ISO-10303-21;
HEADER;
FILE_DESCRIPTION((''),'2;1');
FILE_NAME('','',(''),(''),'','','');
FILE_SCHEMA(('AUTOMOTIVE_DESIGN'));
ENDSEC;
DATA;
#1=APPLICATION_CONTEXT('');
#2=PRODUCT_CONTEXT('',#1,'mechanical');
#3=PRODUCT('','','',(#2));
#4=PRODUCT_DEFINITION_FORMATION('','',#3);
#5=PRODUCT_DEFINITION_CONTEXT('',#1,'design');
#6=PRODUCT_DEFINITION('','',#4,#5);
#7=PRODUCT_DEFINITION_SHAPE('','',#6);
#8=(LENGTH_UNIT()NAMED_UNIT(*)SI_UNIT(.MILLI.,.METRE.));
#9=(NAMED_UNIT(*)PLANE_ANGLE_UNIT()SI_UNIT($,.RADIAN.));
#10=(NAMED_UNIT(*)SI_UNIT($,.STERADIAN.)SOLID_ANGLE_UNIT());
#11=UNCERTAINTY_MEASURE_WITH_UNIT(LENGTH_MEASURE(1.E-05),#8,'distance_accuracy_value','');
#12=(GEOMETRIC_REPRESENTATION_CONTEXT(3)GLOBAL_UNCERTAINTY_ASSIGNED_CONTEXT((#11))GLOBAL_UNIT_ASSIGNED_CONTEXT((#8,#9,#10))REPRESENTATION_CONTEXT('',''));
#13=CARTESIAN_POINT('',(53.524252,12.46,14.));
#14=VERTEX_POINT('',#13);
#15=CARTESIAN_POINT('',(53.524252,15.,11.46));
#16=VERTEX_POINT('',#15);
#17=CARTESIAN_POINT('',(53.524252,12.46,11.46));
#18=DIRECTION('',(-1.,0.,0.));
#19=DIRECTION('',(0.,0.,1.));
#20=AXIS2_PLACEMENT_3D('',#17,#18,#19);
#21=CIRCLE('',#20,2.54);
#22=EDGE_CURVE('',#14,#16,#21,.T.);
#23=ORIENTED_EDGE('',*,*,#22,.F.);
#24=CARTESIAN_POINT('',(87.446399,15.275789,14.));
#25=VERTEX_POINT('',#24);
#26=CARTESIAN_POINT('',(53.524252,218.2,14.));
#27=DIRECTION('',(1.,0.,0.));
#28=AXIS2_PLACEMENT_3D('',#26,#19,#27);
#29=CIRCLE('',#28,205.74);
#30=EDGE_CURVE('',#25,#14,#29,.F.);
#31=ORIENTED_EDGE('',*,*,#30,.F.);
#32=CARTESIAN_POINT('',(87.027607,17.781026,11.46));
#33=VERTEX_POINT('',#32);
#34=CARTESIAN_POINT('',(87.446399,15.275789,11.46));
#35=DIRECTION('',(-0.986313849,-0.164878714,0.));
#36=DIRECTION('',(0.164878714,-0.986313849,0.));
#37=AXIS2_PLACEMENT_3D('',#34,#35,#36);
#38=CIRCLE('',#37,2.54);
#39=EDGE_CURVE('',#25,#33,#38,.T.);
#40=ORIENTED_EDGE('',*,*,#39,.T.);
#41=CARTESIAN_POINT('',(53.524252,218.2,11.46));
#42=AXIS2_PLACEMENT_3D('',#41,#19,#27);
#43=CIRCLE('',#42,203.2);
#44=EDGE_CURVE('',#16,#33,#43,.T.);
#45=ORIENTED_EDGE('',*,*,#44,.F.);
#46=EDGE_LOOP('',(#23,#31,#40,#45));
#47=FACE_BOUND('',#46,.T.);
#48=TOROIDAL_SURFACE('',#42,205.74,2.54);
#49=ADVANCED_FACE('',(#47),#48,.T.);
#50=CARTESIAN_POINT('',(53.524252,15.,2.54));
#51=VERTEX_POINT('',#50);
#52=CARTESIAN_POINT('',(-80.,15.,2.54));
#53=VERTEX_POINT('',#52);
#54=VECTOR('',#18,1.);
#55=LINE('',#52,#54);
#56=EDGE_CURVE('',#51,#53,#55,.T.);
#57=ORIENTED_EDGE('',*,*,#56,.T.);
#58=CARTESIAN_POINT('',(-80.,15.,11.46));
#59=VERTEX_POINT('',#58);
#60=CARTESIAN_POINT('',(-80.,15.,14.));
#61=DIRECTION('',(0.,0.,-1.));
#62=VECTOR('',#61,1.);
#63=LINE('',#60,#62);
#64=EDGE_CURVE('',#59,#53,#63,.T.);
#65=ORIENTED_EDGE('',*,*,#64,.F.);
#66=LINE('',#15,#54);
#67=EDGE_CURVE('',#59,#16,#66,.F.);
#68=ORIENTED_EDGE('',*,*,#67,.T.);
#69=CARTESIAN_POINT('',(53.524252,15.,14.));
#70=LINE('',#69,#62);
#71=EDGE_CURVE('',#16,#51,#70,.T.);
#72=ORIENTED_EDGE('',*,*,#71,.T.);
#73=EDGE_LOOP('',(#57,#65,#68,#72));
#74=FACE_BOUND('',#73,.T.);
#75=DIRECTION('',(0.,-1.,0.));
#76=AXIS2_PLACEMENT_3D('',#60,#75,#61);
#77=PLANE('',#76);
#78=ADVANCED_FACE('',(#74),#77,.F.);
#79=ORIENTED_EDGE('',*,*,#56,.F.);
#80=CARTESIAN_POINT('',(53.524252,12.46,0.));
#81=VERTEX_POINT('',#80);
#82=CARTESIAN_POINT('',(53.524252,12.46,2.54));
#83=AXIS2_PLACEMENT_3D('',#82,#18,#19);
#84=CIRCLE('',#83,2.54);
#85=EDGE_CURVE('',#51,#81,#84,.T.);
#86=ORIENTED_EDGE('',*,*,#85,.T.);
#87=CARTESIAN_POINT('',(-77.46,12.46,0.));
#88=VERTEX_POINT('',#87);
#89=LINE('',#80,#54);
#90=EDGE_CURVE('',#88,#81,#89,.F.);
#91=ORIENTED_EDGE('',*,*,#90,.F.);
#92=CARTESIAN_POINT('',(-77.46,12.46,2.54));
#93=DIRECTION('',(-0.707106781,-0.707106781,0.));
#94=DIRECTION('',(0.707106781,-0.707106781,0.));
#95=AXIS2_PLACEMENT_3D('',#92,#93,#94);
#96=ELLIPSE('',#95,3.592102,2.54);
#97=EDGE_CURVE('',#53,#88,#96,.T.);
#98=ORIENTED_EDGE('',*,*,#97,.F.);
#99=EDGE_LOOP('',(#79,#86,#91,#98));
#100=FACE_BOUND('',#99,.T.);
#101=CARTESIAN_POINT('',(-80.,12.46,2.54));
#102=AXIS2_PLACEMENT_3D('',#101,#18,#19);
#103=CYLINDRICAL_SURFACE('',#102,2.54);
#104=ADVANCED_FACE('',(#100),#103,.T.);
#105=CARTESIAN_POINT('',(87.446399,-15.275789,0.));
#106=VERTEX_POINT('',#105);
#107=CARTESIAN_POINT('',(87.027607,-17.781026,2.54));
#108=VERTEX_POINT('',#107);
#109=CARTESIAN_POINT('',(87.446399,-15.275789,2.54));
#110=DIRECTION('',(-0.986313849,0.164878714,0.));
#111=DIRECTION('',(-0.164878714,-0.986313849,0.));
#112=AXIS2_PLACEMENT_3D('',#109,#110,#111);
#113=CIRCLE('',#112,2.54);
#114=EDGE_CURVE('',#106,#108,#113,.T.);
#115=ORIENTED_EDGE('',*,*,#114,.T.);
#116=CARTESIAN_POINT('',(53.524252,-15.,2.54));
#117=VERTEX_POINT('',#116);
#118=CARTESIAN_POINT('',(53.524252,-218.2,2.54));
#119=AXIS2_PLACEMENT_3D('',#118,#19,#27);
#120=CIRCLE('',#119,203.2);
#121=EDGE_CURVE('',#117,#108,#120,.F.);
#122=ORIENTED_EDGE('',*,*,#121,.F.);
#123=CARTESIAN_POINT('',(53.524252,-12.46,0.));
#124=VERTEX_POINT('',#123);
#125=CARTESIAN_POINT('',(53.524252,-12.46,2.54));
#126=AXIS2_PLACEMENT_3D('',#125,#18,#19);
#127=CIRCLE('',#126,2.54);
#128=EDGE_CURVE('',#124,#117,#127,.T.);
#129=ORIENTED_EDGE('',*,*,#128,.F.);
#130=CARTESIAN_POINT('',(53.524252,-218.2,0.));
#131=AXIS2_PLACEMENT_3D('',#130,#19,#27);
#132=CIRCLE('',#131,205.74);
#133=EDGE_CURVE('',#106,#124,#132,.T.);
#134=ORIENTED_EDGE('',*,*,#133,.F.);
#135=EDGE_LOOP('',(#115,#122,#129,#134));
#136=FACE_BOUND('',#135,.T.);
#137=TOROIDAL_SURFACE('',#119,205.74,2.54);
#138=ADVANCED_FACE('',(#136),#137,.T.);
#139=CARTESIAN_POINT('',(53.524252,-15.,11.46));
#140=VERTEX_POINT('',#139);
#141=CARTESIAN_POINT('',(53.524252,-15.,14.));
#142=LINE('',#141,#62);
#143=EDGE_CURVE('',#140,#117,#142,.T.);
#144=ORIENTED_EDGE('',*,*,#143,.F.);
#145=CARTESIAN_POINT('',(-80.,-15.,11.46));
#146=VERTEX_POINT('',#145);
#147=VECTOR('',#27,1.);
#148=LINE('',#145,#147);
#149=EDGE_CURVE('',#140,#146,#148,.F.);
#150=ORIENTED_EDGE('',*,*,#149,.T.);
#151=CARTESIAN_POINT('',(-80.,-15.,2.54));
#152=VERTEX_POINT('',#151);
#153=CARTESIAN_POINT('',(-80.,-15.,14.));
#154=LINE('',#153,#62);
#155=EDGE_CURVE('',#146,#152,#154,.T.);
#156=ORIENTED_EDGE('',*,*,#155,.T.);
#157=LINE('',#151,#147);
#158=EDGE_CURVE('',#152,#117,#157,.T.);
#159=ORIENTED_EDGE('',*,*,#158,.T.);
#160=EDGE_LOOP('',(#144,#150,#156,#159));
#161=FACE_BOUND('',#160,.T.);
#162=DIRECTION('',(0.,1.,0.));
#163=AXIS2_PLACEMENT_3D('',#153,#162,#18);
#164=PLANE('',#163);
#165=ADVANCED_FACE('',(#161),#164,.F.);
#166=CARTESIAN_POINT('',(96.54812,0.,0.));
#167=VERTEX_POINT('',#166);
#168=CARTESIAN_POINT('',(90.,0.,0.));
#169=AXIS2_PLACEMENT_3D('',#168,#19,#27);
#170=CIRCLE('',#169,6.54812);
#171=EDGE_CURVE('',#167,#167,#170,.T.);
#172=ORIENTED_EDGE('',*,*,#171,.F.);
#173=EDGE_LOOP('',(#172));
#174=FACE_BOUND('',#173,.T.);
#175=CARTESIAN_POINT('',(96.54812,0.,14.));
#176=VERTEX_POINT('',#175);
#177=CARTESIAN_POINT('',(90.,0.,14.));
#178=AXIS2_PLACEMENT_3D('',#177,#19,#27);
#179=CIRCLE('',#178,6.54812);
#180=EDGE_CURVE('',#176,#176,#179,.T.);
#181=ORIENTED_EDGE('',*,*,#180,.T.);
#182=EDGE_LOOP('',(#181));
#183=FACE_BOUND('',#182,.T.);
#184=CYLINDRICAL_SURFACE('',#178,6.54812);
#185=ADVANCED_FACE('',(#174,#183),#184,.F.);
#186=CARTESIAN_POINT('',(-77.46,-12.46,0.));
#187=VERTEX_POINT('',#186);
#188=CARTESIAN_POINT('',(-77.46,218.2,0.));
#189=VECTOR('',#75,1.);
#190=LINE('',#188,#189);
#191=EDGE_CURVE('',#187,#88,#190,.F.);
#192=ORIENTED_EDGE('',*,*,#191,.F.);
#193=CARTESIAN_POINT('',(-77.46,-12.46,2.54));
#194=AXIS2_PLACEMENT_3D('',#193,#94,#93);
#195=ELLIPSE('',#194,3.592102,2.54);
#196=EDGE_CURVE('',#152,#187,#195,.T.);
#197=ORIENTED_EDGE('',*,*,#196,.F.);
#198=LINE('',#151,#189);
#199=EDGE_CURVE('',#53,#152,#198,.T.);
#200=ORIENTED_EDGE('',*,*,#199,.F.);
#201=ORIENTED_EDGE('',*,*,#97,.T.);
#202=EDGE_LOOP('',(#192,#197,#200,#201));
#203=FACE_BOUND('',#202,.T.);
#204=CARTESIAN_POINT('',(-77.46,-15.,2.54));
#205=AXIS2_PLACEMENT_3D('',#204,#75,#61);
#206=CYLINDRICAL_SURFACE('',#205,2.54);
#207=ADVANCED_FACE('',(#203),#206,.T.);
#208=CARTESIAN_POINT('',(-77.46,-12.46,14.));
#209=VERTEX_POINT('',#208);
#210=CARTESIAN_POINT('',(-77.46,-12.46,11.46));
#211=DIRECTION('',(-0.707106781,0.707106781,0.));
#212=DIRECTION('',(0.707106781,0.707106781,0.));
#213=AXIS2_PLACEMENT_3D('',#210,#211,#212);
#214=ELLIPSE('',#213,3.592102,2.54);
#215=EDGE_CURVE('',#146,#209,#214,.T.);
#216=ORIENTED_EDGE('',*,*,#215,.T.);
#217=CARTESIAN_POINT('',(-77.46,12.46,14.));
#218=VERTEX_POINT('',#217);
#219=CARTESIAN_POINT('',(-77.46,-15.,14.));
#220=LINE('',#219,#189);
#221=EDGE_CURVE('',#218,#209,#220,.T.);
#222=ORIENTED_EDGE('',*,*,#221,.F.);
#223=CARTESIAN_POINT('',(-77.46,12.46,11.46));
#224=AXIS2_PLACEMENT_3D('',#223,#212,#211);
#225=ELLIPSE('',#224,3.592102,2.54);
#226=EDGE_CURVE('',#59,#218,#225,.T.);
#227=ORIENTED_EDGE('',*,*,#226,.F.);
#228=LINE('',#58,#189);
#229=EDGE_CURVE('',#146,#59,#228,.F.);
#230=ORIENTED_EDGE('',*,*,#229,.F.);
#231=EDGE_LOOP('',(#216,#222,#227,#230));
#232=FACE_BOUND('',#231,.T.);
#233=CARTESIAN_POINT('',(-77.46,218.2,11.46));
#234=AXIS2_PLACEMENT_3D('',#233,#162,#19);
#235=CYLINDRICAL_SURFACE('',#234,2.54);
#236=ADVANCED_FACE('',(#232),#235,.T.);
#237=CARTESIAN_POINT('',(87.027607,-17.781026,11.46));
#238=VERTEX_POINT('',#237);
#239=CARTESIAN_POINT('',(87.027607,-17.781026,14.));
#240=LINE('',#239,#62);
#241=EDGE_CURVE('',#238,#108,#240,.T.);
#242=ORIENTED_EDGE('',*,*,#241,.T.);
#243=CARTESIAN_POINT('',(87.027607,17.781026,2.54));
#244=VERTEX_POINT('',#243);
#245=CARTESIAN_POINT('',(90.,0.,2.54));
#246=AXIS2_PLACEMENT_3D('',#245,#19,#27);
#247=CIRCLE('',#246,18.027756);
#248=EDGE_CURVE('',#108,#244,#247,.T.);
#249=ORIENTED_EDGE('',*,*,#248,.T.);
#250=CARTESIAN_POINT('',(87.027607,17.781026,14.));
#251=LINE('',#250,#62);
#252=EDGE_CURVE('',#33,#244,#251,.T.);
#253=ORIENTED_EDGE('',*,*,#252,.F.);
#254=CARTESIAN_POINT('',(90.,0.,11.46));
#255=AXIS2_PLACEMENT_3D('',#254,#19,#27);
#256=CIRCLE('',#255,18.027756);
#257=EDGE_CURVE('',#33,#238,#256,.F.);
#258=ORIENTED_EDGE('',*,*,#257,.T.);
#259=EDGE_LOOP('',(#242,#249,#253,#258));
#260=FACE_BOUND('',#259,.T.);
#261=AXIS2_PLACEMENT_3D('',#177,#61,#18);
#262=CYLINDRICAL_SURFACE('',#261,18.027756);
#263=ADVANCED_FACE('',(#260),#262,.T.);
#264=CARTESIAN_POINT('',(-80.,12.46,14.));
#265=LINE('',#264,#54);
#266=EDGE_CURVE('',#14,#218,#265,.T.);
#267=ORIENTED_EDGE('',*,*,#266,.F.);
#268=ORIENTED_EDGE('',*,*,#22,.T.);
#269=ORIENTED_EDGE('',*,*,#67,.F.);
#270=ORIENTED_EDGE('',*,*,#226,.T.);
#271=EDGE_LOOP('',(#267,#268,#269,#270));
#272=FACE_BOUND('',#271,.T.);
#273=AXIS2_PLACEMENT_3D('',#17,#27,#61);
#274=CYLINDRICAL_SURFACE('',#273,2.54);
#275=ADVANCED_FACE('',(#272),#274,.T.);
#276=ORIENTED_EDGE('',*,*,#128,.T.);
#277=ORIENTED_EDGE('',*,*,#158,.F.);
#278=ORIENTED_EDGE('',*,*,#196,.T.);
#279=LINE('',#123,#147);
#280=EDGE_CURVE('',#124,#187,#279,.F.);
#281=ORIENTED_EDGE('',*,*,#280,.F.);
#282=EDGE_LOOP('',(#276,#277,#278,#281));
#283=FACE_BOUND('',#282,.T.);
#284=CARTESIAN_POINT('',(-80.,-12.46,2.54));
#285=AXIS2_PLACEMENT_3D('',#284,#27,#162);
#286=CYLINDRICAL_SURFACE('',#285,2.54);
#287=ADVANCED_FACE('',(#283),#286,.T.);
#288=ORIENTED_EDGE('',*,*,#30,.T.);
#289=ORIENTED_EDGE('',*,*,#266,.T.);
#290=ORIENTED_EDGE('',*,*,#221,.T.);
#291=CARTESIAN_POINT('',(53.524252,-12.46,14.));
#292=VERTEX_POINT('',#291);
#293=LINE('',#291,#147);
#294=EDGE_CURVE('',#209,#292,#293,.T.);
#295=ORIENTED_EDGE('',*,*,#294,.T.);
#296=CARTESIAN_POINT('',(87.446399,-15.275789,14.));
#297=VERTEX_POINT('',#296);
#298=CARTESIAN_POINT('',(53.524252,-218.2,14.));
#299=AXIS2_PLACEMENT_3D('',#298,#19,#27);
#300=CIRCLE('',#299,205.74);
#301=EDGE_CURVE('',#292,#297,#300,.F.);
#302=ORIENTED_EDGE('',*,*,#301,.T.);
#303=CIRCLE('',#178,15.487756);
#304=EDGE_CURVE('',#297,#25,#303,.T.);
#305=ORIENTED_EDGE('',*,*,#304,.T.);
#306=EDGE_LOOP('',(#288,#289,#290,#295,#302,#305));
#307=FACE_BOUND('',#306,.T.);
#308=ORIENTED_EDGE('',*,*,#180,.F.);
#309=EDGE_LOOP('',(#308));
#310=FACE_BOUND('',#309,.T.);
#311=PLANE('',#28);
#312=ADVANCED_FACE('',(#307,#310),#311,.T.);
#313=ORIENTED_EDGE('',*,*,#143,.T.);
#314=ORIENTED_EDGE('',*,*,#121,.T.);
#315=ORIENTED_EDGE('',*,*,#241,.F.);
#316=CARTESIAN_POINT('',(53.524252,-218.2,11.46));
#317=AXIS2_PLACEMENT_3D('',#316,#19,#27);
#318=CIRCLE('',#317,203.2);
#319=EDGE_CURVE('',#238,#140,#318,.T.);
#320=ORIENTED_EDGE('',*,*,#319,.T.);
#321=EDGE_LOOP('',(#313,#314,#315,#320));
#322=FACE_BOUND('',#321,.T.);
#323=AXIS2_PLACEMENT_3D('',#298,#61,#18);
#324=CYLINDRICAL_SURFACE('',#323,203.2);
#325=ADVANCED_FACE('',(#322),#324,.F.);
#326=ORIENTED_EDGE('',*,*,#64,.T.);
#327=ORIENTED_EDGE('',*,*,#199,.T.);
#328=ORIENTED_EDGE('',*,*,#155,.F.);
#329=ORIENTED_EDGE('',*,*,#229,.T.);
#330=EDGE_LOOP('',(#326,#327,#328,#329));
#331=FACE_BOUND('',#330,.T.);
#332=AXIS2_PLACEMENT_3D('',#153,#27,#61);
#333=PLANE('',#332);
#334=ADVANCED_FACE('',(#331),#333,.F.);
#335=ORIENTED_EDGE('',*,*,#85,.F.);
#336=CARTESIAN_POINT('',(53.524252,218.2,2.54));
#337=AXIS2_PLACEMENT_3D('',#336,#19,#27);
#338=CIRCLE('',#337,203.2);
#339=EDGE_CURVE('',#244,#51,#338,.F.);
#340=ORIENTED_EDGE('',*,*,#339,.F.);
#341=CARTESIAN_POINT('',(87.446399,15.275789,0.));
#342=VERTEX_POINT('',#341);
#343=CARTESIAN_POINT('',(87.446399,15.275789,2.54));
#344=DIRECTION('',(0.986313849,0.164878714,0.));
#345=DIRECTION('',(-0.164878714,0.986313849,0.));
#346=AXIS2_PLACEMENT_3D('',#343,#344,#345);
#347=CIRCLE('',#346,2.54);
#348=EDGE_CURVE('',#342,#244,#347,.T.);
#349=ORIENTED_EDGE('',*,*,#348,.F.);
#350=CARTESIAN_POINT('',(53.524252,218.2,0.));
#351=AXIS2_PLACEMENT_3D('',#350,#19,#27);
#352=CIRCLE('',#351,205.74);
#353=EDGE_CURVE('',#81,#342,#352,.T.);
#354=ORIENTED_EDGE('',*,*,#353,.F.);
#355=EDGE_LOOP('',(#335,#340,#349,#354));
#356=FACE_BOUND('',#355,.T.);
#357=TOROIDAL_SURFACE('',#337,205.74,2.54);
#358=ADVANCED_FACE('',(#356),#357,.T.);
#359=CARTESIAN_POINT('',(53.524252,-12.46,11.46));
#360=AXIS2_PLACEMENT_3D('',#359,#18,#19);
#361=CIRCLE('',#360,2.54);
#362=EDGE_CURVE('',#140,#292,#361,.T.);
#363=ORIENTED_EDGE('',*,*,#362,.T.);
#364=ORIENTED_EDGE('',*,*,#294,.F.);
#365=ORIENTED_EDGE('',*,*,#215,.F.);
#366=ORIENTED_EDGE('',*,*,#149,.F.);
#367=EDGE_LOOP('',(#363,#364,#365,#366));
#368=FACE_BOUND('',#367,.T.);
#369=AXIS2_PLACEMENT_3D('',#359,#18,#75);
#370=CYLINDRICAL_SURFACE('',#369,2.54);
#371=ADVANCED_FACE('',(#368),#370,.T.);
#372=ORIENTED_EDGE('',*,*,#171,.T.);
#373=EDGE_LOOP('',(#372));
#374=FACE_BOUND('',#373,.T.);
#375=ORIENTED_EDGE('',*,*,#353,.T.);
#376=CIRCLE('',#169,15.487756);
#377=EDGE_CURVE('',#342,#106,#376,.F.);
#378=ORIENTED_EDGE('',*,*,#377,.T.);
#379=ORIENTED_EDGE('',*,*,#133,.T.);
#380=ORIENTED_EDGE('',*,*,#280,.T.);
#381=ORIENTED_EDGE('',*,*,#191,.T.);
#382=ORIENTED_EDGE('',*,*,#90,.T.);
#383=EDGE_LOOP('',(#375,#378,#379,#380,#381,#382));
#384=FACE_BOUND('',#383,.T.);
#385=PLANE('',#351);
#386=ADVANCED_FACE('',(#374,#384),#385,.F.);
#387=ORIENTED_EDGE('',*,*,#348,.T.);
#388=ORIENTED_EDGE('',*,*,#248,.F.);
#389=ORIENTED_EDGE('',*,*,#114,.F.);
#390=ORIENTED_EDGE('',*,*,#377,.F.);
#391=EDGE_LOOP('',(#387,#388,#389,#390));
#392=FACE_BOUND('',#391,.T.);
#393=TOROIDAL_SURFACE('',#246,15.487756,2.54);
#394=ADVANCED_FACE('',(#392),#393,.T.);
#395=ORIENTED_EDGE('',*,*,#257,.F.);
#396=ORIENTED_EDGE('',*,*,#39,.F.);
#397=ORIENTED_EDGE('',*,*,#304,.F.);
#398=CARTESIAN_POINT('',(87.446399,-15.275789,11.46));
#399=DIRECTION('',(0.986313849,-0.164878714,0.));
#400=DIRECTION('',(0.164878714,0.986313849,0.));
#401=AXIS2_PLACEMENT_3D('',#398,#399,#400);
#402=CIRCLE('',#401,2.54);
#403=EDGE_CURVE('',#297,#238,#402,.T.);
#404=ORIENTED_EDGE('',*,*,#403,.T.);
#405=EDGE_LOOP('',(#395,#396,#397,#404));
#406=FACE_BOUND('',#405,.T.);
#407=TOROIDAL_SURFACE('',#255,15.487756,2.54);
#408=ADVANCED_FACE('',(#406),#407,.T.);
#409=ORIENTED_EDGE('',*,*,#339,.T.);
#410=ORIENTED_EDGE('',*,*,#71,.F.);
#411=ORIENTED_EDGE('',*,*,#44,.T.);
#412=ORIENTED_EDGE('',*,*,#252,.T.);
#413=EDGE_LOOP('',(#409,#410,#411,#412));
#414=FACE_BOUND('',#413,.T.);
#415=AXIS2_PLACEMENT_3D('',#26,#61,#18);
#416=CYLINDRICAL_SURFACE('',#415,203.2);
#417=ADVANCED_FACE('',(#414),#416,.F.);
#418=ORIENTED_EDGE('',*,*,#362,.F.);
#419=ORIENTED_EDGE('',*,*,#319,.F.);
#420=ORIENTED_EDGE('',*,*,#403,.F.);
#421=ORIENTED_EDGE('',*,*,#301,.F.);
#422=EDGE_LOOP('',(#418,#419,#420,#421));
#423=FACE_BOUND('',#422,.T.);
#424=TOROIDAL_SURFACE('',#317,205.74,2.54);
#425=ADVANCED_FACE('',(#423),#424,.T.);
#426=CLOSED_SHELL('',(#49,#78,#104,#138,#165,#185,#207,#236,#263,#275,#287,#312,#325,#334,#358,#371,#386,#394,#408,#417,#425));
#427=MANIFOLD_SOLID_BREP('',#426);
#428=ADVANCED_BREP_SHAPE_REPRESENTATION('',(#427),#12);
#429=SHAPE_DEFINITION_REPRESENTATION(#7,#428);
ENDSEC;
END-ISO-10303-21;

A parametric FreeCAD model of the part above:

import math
import FreeCAD as App
import Part
import Sketcher

V = App.Vector
Q = App.Units.Quantity


def edges_at(feature, points):
    """Names of the edges that pass closest to the given points."""
    edges = feature.Shape.Edges
    near = lambda p: min(range(len(edges)), key=lambda i: edges[i].distToShape(Part.Vertex(*p))[0])
    return sorted({f"Edge{near(p) + 1}" for p in points})

doc = App.newDocument("Part")
params = doc.addObject("Spreadsheet::Sheet", "Params")
for row, (alias, value) in enumerate([
    ("sketch1_radius", "203.2 mm"),
    ("sketch1_height", "30 mm"),
    ("pad1_length", "14 mm"),
    ("fillet_radius", "2.54 mm"),
    ("fillet2_radius", "2.54 mm"),
    ("hole_diameter", "13.09624 mm"),
], start=1):
    params.set(f"A{row}", alias)
    params.set(f"B{row}", "=" + value)
    params.setAlias(f"B{row}", alias)

body = doc.addObject("PartDesign::Body", "Body")

# Sketch on XY plane
sketch1 = body.newObject("Sketcher::SketchObject", "Sketch")
sketch1.AttachmentSupport = (doc.getObject("XY_Plane"), [""])
sketch1.MapMode = "FlatFace"
sketch1.addGeometry([
    Part.LineSegment(V(-80, -15, 0), V(53.524252, -15, 0)),  # 0
    Part.ArcOfCircle(Part.Circle(V(53.524252, -218.2, 0), V(0, 0, 1), 203.2), math.radians(80.509811), math.radians(90)),  # 1
    Part.ArcOfCircle(Part.Circle(V(90, 0, 0), V(0, 0, 1), 18.027756), math.radians(-99.490189), math.radians(99.490189)),  # 2
    Part.ArcOfCircle(Part.Circle(V(53.524252, 218.2, 0), V(0, 0, 1), 203.2), math.radians(-90), math.radians(-80.509811)),  # 3
    Part.LineSegment(V(53.524252, 15, 0), V(-80, 15, 0)),  # 4
    Part.LineSegment(V(-80, 15, 0), V(-80, -15, 0)),  # 5
], False)
sketch1.addConstraint([
    Sketcher.Constraint("Tangent", 0, 2, 1, 2),
    Sketcher.Constraint("Tangent", 1, 1, 2, 1),
    Sketcher.Constraint("Tangent", 2, 2, 3, 2),
    Sketcher.Constraint("Tangent", 3, 1, 4, 1),
    Sketcher.Constraint("Coincident", 4, 2, 5, 1),
    Sketcher.Constraint("Coincident", 5, 2, 0, 1),
    Sketcher.Constraint("Horizontal", 0),
    Sketcher.Constraint("Horizontal", 4),
    Sketcher.Constraint("Vertical", 5),
    Sketcher.Constraint("Equal", 1, 3),
    Sketcher.Constraint("Symmetric", 1, 3, 3, 3, -1),
    Sketcher.Constraint("Radius", 1, Q("203.2 mm")),
    Sketcher.Constraint("DistanceY", 5, 2, 5, 1, Q("30 mm")),
    Sketcher.Constraint("DistanceX", -1, 1, 2, 3, Q("90 mm")),
    Sketcher.Constraint("DistanceX", 4, 2, -1, 1, Q("80 mm")),
    Sketcher.Constraint("Radius", 2, Q("18.027756 mm")),
])
sketch1.setExpression("Constraints[11]", "Params.sketch1_radius")
sketch1.setExpression("Constraints[12]", "Params.sketch1_height")
pad1 = body.newObject("PartDesign::Pad", "Pad")
pad1.Profile = sketch1
pad1.setExpression("Length", "Params.pad1_length")
doc.recompute()

fillet = body.newObject("PartDesign::Fillet", "Fillet")
fillet.Base = (pad1, edges_at(pad1, [
    (70.334, -15.696, 14),
    (108.028, 0, 14),
    (70.334, 15.696, 14),
    (-13.238, 15, 14),
    (-80, 0, 14),
    (-13.238, -15, 14),
]))
fillet.setExpression("Radius", "Params.fillet_radius")
doc.recompute()

fillet2 = body.newObject("PartDesign::Fillet", "Fillet001")
fillet2.Base = (fillet, edges_at(fillet, [
    (-13.238, 15, 0),
    (70.334, 15.696, 0),
    (108.028, 0, 0),
    (70.334, -15.696, 0),
    (-13.238, -15, 0),
    (-80, 0, 0),
]))
fillet2.setExpression("Radius", "Params.fillet2_radius")

# Sketch on XY plane
sketch2 = body.newObject("Sketcher::SketchObject", "Sketch001")
sketch2.AttachmentSupport = (doc.getObject("XY_Plane"), [""])
sketch2.MapMode = "FlatFace"
sketch2.AttachmentOffset = App.Placement(V(0, 0, 14), App.Rotation())
sketch2.addGeometry(Part.Circle(V(90, 0, 0), V(0, 0, 1), 6.54812), False)
sketch2.addConstraint([
    Sketcher.Constraint("PointOnObject", 0, 3, -1),
    Sketcher.Constraint("DistanceX", -1, 1, 0, 3, Q("90 mm")),
    Sketcher.Constraint("Diameter", 0, Q("13.09624 mm")),
])
doc.recompute()
hole = body.newObject("PartDesign::Hole", "Hole")
hole.Profile = sketch2
hole.ThreadType = "None"
hole.setExpression("Diameter", "Params.hole_diameter")
hole.DepthType = "ThroughAll"

doc.recompute()
